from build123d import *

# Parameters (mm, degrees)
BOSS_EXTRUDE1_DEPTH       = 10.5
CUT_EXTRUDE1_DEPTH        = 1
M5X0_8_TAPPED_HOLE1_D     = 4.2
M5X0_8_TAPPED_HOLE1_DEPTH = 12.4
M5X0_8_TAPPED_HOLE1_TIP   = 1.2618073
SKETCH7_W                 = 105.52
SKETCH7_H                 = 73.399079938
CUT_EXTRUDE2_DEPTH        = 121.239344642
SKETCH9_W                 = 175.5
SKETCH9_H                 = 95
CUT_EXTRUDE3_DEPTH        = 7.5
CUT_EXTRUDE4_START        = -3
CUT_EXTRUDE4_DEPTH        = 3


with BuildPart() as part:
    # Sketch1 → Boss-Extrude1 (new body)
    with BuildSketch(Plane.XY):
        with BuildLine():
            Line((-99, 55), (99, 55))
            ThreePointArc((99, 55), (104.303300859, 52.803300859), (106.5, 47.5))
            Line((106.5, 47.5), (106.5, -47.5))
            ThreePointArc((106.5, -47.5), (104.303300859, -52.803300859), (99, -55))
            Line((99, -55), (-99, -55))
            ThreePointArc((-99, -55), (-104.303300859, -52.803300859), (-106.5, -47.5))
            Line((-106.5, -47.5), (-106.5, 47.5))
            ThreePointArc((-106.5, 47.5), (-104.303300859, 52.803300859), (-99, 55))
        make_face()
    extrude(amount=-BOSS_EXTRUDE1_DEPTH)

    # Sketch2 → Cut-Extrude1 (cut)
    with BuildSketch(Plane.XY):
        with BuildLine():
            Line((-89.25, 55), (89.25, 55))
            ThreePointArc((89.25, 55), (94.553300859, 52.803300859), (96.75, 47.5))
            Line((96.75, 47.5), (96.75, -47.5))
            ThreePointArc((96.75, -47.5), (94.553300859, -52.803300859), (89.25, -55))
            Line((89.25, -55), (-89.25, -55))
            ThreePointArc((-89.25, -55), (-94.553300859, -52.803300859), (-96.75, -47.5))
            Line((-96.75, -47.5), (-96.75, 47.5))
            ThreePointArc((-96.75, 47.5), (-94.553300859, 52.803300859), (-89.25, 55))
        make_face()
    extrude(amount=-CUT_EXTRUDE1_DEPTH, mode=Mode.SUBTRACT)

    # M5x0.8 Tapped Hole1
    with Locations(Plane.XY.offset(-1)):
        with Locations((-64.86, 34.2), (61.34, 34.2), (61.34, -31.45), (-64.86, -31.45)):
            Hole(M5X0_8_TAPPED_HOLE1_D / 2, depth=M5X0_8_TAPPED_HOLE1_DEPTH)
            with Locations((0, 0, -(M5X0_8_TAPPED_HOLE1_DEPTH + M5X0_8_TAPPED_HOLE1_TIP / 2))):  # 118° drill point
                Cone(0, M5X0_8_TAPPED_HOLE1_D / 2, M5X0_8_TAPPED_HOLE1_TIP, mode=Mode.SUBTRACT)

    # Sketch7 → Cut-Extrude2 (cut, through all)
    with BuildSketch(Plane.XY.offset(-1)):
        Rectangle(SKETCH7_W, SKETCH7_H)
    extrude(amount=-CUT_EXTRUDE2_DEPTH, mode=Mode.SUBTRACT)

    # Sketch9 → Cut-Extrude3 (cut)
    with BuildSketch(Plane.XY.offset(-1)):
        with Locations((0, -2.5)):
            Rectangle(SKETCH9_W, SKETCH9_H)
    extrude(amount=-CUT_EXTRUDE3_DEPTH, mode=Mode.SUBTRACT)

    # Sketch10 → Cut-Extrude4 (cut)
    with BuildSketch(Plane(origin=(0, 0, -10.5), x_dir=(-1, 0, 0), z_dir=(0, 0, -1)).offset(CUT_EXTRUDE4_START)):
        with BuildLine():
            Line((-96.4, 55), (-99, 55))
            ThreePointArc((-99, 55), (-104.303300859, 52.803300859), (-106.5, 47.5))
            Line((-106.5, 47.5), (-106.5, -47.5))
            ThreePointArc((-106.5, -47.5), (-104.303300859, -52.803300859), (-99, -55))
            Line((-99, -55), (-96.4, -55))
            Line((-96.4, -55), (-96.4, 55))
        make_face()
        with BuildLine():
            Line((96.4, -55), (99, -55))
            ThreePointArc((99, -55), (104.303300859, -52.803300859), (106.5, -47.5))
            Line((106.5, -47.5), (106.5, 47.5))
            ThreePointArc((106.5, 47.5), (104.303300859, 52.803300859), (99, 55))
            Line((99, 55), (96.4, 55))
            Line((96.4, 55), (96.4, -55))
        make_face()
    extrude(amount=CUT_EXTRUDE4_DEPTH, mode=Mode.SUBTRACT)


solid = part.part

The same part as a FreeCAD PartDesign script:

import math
import FreeCAD as App
import Part
import Sketcher

doc = App.newDocument("Part")
body = doc.addObject("PartDesign::Body", "Body")

# Sketch on XY plane
sketch1 = body.newObject("Sketcher::SketchObject", "Sketch")
sketch1.AttachmentSupport = (doc.getObject("XY_Plane"), [""])
sketch1.MapMode = "FlatFace"
sketch1.addGeometry(Part.LineSegment(App.Vector(99, 55, 0), App.Vector(-99, 55, 0)), False)
sketch1.addGeometry(Part.ArcOfCircle(Part.Circle(App.Vector(-99, 48, 0), App.Vector(0, 0, 1), 8), math.radians(90), math.radians(180)), False)
sketch1.addGeometry(Part.LineSegment(App.Vector(-106, 48, 0), App.Vector(-106, -48, 0)), False)
sketch1.addGeometry(Part.ArcOfCircle(Part.Circle(App.Vector(-99, -48, 0), App.Vector(0, 0, 1), 8), math.radians(180), math.radians(270)), False)
sketch1.addGeometry(Part.LineSegment(App.Vector(-99, -55, 0), App.Vector(99, -55, 0)), False)
sketch1.addGeometry(Part.ArcOfCircle(Part.Circle(App.Vector(99, -48, 0), App.Vector(0, 0, 1), 8), math.radians(-90), math.radians(0)), False)
sketch1.addGeometry(Part.LineSegment(App.Vector(106, -48, 0), App.Vector(106, 48, 0)), False)
sketch1.addGeometry(Part.ArcOfCircle(Part.Circle(App.Vector(99, 48, 0), App.Vector(0, 0, 1), 8), math.radians(0), math.radians(90)), False)
sketch1.addConstraint(Sketcher.Constraint("Tangent", 0, 2, 1, 1))
sketch1.addConstraint(Sketcher.Constraint("Tangent", 1, 2, 2, 1))
sketch1.addConstraint(Sketcher.Constraint("Tangent", 2, 2, 3, 1))
sketch1.addConstraint(Sketcher.Constraint("Tangent", 3, 2, 4, 1))
sketch1.addConstraint(Sketcher.Constraint("Tangent", 4, 2, 5, 1))
sketch1.addConstraint(Sketcher.Constraint("Tangent", 5, 2, 6, 1))
sketch1.addConstraint(Sketcher.Constraint("Tangent", 6, 2, 7, 1))
sketch1.addConstraint(Sketcher.Constraint("Tangent", 7, 2, 0, 1))
sketch1.addConstraint(Sketcher.Constraint("Horizontal", 0))
sketch1.addConstraint(Sketcher.Constraint("Vertical", 2))
sketch1.addConstraint(Sketcher.Constraint("Horizontal", 4))
sketch1.addConstraint(Sketcher.Constraint("Vertical", 6))
sketch1.addConstraint(Sketcher.Constraint("Equal", 1, 3))
sketch1.addConstraint(Sketcher.Constraint("Equal", 3, 5))
sketch1.addConstraint(Sketcher.Constraint("Equal", 5, 7))
sketch1.addConstraint(Sketcher.Constraint("Symmetric", 1, 3, 5, 3, -1, 1))
sketch1.addConstraint(Sketcher.Constraint("Radius", 1, 7.5))
sketch1.addConstraint(Sketcher.Constraint("DistanceX", 0, 2, 0, 1, 198.0))
sketch1.addConstraint(Sketcher.Constraint("DistanceY", 2, 2, 2, 1, 95.0))
pad1 = body.newObject("PartDesign::Pad", "Pad")
pad1.Profile = sketch1
pad1.Length = 10.5
pad1.Reversed = True

# Sketch on XY plane
sketch2 = body.newObject("Sketcher::SketchObject", "Sketch001")
sketch2.AttachmentSupport = (doc.getObject("XY_Plane"), [""])
sketch2.MapMode = "FlatFace"
sketch2.addGeometry(Part.LineSegment(App.Vector(89, 55, 0), App.Vector(-89, 55, 0)), False)
sketch2.addGeometry(Part.ArcOfCircle(Part.Circle(App.Vector(-89, 48, 0), App.Vector(0, 0, 1), 8), math.radians(90), math.radians(180)), False)
sketch2.addGeometry(Part.LineSegment(App.Vector(-97, 48, 0), App.Vector(-97, -48, 0)), False)
sketch2.addGeometry(Part.ArcOfCircle(Part.Circle(App.Vector(-89, -48, 0), App.Vector(0, 0, 1), 8), math.radians(180), math.radians(270)), False)
sketch2.addGeometry(Part.LineSegment(App.Vector(-89, -55, 0), App.Vector(89, -55, 0)), False)
sketch2.addGeometry(Part.ArcOfCircle(Part.Circle(App.Vector(89, -48, 0), App.Vector(0, 0, 1), 8), math.radians(-90), math.radians(0)), False)
sketch2.addGeometry(Part.LineSegment(App.Vector(97, -48, 0), App.Vector(97, 48, 0)), False)
sketch2.addGeometry(Part.ArcOfCircle(Part.Circle(App.Vector(89, 48, 0), App.Vector(0, 0, 1), 8), math.radians(0), math.radians(90)), False)
sketch2.addConstraint(Sketcher.Constraint("Tangent", 0, 2, 1, 1))
sketch2.addConstraint(Sketcher.Constraint("Tangent", 1, 2, 2, 1))
sketch2.addConstraint(Sketcher.Constraint("Tangent", 2, 2, 3, 1))
sketch2.addConstraint(Sketcher.Constraint("Tangent", 3, 2, 4, 1))
sketch2.addConstraint(Sketcher.Constraint("Tangent", 4, 2, 5, 1))
sketch2.addConstraint(Sketcher.Constraint("Tangent", 5, 2, 6, 1))
sketch2.addConstraint(Sketcher.Constraint("Tangent", 6, 2, 7, 1))
sketch2.addConstraint(Sketcher.Constraint("Tangent", 7, 2, 0, 1))
sketch2.addConstraint(Sketcher.Constraint("Horizontal", 0))
sketch2.addConstraint(Sketcher.Constraint("Vertical", 2))
sketch2.addConstraint(Sketcher.Constraint("Horizontal", 4))
sketch2.addConstraint(Sketcher.Constraint("Vertical", 6))
sketch2.addConstraint(Sketcher.Constraint("Equal", 1, 3))
sketch2.addConstraint(Sketcher.Constraint("Equal", 3, 5))
sketch2.addConstraint(Sketcher.Constraint("Equal", 5, 7))
sketch2.addConstraint(Sketcher.Constraint("Symmetric", 1, 3, 5, 3, -1, 1))
sketch2.addConstraint(Sketcher.Constraint("Radius", 1, 7.5))
sketch2.addConstraint(Sketcher.Constraint("DistanceY", 2, 2, 2, 1, 95.0))
sketch2.addConstraint(Sketcher.Constraint("DistanceX", 0, 2, 0, 1, 178.5))
pocket1 = body.newObject("PartDesign::Pocket", "Pocket")
pocket1.Profile = sketch2
pocket1.Length = 1

# Sketch on XY plane
sketch3 = body.newObject("Sketcher::SketchObject", "Sketch002")
sketch3.AttachmentSupport = (doc.getObject("XY_Plane"), [""])
sketch3.MapMode = "FlatFace"
sketch3.AttachmentOffset = App.Placement(App.Vector(0, 0, -1), App.Rotation())
sketch3.addGeometry(Part.Circle(App.Vector(-64.9, 34.2, 0), App.Vector(0, 0, 1), 2.1), False)
sketch3.addGeometry(Part.Circle(App.Vector(61.3, 34.2, 0), App.Vector(0, 0, 1), 2.1), False)
sketch3.addGeometry(Part.Circle(App.Vector(61.3, -31.4, 0), App.Vector(0, 0, 1), 2.1), False)
sketch3.addGeometry(Part.Circle(App.Vector(-64.9, -31.4, 0), App.Vector(0, 0, 1), 2.1), False)
sketch3.addConstraint(Sketcher.Constraint("Equal", 0, 1))
sketch3.addConstraint(Sketcher.Constraint("Equal", 1, 2))
sketch3.addConstraint(Sketcher.Constraint("Equal", 2, 3))
sketch3.addConstraint(Sketcher.Constraint("Horizontal", 0, 3, 1, 3))
sketch3.addConstraint(Sketcher.Constraint("Horizontal", 2, 3, 3, 3))
sketch3.addConstraint(Sketcher.Constraint("Vertical", 1, 3, 2, 3))
sketch3.addConstraint(Sketcher.Constraint("Vertical", 0, 3, 3, 3))
sketch3.addConstraint(Sketcher.Constraint("Diameter", 0, 4.2))
sketch3.addConstraint(Sketcher.Constraint("DistanceY", -1, 1, 0, 3, 34.2))
sketch3.addConstraint(Sketcher.Constraint("DistanceX", 0, 3, 1, 3, 126.2))
sketch3.addConstraint(Sketcher.Constraint("DistanceX", 0, 3, -1, 1, 64.86))
sketch3.addConstraint(Sketcher.Constraint("DistanceY", 2, 3, -1, 1, 31.45))
doc.recompute()
hole = body.newObject("PartDesign::Hole", "Hole")
hole.Profile = sketch3
hole.ThreadType = "None"
hole.Diameter = 4.2
hole.DepthType = "Dimension"
hole.Depth = 12.4
hole.DrillPoint = "Angled"
hole.DrillPointAngle = 118

# Sketch on XY plane
sketch4 = body.newObject("Sketcher::SketchObject", "Sketch003")
sketch4.AttachmentSupport = (doc.getObject("XY_Plane"), [""])
sketch4.MapMode = "FlatFace"
sketch4.AttachmentOffset = App.Placement(App.Vector(0, 0, -1), App.Rotation())
sketch4.addGeometry(Part.LineSegment(App.Vector(-53, 37, 0), App.Vector(-53, -37, 0)), False)
sketch4.addGeometry(Part.LineSegment(App.Vector(-53, -37, 0), App.Vector(53, -37, 0)), False)
sketch4.addGeometry(Part.LineSegment(App.Vector(53, -37, 0), App.Vector(53, 37, 0)), False)
sketch4.addGeometry(Part.LineSegment(App.Vector(53, 37, 0), App.Vector(-53, 37, 0)), False)
sketch4.addConstraint(Sketcher.Constraint("Coincident", 0, 2, 1, 1))
sketch4.addConstraint(Sketcher.Constraint("Coincident", 1, 2, 2, 1))
sketch4.addConstraint(Sketcher.Constraint("Coincident", 2, 2, 3, 1))
sketch4.addConstraint(Sketcher.Constraint("Coincident", 3, 2, 0, 1))
sketch4.addConstraint(Sketcher.Constraint("Vertical", 0))
sketch4.addConstraint(Sketcher.Constraint("Horizontal", 1))
sketch4.addConstraint(Sketcher.Constraint("Vertical", 2))
sketch4.addConstraint(Sketcher.Constraint("Horizontal", 3))
sketch4.addConstraint(Sketcher.Constraint("Symmetric", 0, 2, 2, 2, -1, 1))
sketch4.addConstraint(Sketcher.Constraint("DistanceX", 1, 1, 1, 2, 105.52))
sketch4.addConstraint(Sketcher.Constraint("DistanceY", 0, 2, 0, 1, 73.39908))
pocket2 = body.newObject("PartDesign::Pocket", "Pocket001")
pocket2.Profile = sketch4
pocket2.Type = "ThroughAll"

# Sketch on XY plane
sketch5 = body.newObject("Sketcher::SketchObject", "Sketch004")
sketch5.AttachmentSupport = (doc.getObject("XY_Plane"), [""])
sketch5.MapMode = "FlatFace"
sketch5.AttachmentOffset = App.Placement(App.Vector(0, 0, -1), App.Rotation())
sketch5.addGeometry(Part.LineSegment(App.Vector(-88, 45, 0), App.Vector(-88, -50, 0)), False)
sketch5.addGeometry(Part.LineSegment(App.Vector(-88, -50, 0), App.Vector(88, -50, 0)), False)
sketch5.addGeometry(Part.LineSegment(App.Vector(88, -50, 0), App.Vector(88, 45, 0)), False)
sketch5.addGeometry(Part.LineSegment(App.Vector(88, 45, 0), App.Vector(-88, 45, 0)), False)
sketch5.addConstraint(Sketcher.Constraint("Coincident", 0, 2, 1, 1))
sketch5.addConstraint(Sketcher.Constraint("Coincident", 1, 2, 2, 1))
sketch5.addConstraint(Sketcher.Constraint("Coincident", 2, 2, 3, 1))
sketch5.addConstraint(Sketcher.Constraint("Coincident", 3, 2, 0, 1))
sketch5.addConstraint(Sketcher.Constraint("Vertical", 0))
sketch5.addConstraint(Sketcher.Constraint("Horizontal", 1))
sketch5.addConstraint(Sketcher.Constraint("Vertical", 2))
sketch5.addConstraint(Sketcher.Constraint("Horizontal", 3))
sketch5.addConstraint(Sketcher.Constraint("DistanceY", 0, 2, 0, 1, 95.0))
sketch5.addConstraint(Sketcher.Constraint("DistanceX", 1, 1, 1, 2, 175.5))
sketch5.addConstraint(Sketcher.Constraint("DistanceY", 0, 2, -1, 1, 50.0))
sketch5.addConstraint(Sketcher.Constraint("DistanceX", 0, 2, -1, 1, 87.75))
pocket3 = body.newObject("PartDesign::Pocket", "Pocket002")
pocket3.Profile = sketch5
pocket3.Length = 7.5

# Sketch on XY plane
sketch6 = body.newObject("Sketcher::SketchObject", "Sketch005")
sketch6.AttachmentSupport = (doc.getObject("XY_Plane"), [""])
sketch6.MapMode = "FlatFace"
sketch6.AttachmentOffset = App.Placement(App.Vector(0, 0, -7.5), App.Rotation())
sketch6.addGeometry(Part.LineSegment(App.Vector(96.4, 55, 0), App.Vector(99, 55, 0)), False)
sketch6.addGeometry(Part.ArcOfCircle(Part.Circle(App.Vector(99, 47.5, 0), App.Vector(0, 0, 1), 7.5), math.radians(0), math.radians(90)), False)
sketch6.addGeometry(Part.LineSegment(App.Vector(106.5, 47.5, 0), App.Vector(106.5, -47.5, 0)), False)
sketch6.addGeometry(Part.ArcOfCircle(Part.Circle(App.Vector(99, -47.5, 0), App.Vector(0, 0, 1), 7.5), math.radians(-90), math.radians(0)), False)
sketch6.addGeometry(Part.LineSegment(App.Vector(99, -55, 0), App.Vector(96.4, -55, 0)), False)
sketch6.addGeometry(Part.LineSegment(App.Vector(96.4, -55, 0), App.Vector(96.4, 55, 0)), False)
sketch6.addGeometry(Part.LineSegment(App.Vector(-96.4, -55, 0), App.Vector(-99, -55, 0)), False)
sketch6.addGeometry(Part.ArcOfCircle(Part.Circle(App.Vector(-99, -47.5, 0), App.Vector(0, 0, 1), 7.5), math.radians(180), math.radians(270)), False)
sketch6.addGeometry(Part.LineSegment(App.Vector(-106.5, -47.5, 0), App.Vector(-106.5, 47.5, 0)), False)
sketch6.addGeometry(Part.ArcOfCircle(Part.Circle(App.Vector(-99, 47.5, 0), App.Vector(0, 0, 1), 7.5), math.radians(90), math.radians(180)), False)
sketch6.addGeometry(Part.LineSegment(App.Vector(-99, 55, 0), App.Vector(-96.4, 55, 0)), False)
sketch6.addGeometry(Part.LineSegment(App.Vector(-96.4, 55, 0), App.Vector(-96.4, -55, 0)), False)
sketch6.addConstraint(Sketcher.Constraint("Tangent", 0, 2, 1, 2))
sketch6.addConstraint(Sketcher.Constraint("Tangent", 1, 1, 2, 1))
sketch6.addConstraint(Sketcher.Constraint("Tangent", 2, 2, 3, 2))
sketch6.addConstraint(Sketcher.Constraint("Tangent", 3, 1, 4, 1))
sketch6.addConstraint(Sketcher.Constraint("Coincident", 4, 2, 5, 1))
sketch6.addConstraint(Sketcher.Constraint("Coincident", 5, 2, 0, 1))
sketch6.addConstraint(Sketcher.Constraint("Tangent", 6, 2, 7, 2))
sketch6.addConstraint(Sketcher.Constraint("Tangent", 7, 1, 8, 1))
sketch6.addConstraint(Sketcher.Constraint("Tangent", 8, 2, 9, 2))
sketch6.addConstraint(Sketcher.Constraint("Tangent", 9, 1, 10, 1))
sketch6.addConstraint(Sketcher.Constraint("Coincident", 10, 2, 11, 1))
sketch6.addConstraint(Sketcher.Constraint("Coincident", 11, 2, 6, 1))
sketch6.addConstraint(Sketcher.Constraint("Horizontal", 0))
sketch6.addConstraint(Sketcher.Constraint("Vertical", 2))
sketch6.addConstraint(Sketcher.Constraint("Horizontal", 4))
sketch6.addConstraint(Sketcher.Constraint("Vertical", 5))
sketch6.addConstraint(Sketcher.Constraint("Horizontal", 6))
sketch6.addConstraint(Sketcher.Constraint("Vertical", 8))
sketch6.addConstraint(Sketcher.Constraint("Horizontal", 10))
sketch6.addConstraint(Sketcher.Constraint("Vertical", 11))
sketch6.addConstraint(Sketcher.Constraint("Equal", 1, 3))
sketch6.addConstraint(Sketcher.Constraint("Equal", 3, 7))
sketch6.addConstraint(Sketcher.Constraint("Equal", 7, 9))
sketch6.addConstraint(Sketcher.Constraint("Symmetric", 1, 3, 7, 3, -1, 1))
sketch6.addConstraint(Sketcher.Constraint("Symmetric", 4, 2, 10, 2, -1, 1))
sketch6.addConstraint(Sketcher.Constraint("Horizontal", 3, 3, 7, 3))
sketch6.addConstraint(Sketcher.Constraint("Radius", 1, 7.5))
sketch6.addConstraint(Sketcher.Constraint("DistanceY", 2, 2, 2, 1, 95.0))
sketch6.addConstraint(Sketcher.Constraint("DistanceX", 0, 1, 0, 2, 2.6))
sketch6.addConstraint(Sketcher.Constraint("DistanceX", -1, 1, 1, 3, 99.0))
pocket4 = body.newObject("PartDesign::Pocket", "Pocket003")
pocket4.Profile = sketch6
pocket4.Length = 3

doc.recompute()
